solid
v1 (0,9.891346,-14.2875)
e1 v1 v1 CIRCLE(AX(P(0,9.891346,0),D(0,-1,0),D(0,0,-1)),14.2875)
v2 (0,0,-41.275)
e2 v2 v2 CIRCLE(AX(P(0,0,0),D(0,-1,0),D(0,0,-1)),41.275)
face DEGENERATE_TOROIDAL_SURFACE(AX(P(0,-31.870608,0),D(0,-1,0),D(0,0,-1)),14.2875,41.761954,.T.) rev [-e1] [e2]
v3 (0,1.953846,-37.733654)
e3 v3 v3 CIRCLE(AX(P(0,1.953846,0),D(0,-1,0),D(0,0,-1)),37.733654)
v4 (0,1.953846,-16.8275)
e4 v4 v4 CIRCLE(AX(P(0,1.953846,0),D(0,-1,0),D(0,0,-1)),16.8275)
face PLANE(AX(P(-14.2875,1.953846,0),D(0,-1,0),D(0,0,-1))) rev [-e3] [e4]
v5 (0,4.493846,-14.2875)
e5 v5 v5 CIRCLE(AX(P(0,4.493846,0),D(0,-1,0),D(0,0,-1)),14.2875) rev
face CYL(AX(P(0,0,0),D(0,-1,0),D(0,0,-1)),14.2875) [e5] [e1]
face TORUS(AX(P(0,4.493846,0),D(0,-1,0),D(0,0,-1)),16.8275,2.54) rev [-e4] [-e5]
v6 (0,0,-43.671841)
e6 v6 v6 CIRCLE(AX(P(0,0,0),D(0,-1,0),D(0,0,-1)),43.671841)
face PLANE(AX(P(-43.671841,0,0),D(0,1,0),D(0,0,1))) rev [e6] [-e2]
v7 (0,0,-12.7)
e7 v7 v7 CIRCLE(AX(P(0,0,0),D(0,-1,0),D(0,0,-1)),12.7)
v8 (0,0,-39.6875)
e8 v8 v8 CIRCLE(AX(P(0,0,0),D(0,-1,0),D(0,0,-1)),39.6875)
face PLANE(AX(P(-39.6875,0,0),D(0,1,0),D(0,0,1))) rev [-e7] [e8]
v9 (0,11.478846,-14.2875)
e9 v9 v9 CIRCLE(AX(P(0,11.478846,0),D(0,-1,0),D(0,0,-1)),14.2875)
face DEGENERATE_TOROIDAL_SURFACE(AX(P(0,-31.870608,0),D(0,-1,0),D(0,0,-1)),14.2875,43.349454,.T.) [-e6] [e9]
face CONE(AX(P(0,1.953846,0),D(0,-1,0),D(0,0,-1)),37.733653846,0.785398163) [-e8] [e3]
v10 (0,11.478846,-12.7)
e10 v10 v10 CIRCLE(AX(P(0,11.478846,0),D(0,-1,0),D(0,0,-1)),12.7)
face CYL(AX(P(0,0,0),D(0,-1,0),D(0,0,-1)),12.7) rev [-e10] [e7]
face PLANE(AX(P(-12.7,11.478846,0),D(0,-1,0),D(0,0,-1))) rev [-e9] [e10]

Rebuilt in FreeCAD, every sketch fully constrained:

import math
import FreeCAD as App
import Part
import Sketcher

V = App.Vector
Q = App.Units.Quantity


def edges_at(feature, points):
    """Names of the edges that pass closest to the given points."""
    edges = feature.Shape.Edges
    near = lambda p: min(range(len(edges)), key=lambda i: edges[i].distToShape(Part.Vertex(*p))[0])
    return sorted({f"Edge{near(p) + 1}" for p in points})

doc = App.newDocument("Part")
params = doc.addObject("Spreadsheet::Sheet", "Params")
for row, (alias, value) in enumerate([
    ("sketch1_width", "0.0625 in"),
    ("sketch1_height", "0.3125 in"),
    ("revolution_angle", "360 deg"),
    ("fillet_radius", "0.1 in"),
], start=1):
    params.set(f"A{row}", alias)
    params.set(f"B{row}", "=" + value)
    params.setAlias(f"B{row}", alias)

body = doc.addObject("PartDesign::Body", "Body")

# Sketch on XY plane
sketch1 = doc.addObject("Sketcher::SketchObject", "Sketch")
body.addObject(sketch1)
sketch1.AttachmentSupport = (doc.XY_Plane, [""])
sketch1.MapMode = "FlatFace"
sketch1.addGeometry([
    Part.LineSegment(V(-12.7, 0, 0), V(-12.7, 11.5, 0)),  # 0
    Part.LineSegment(V(-12.7, 11.5, 0), V(-14.3, 11.5, 0)),  # 1
    Part.ArcOfCircle(Part.Circle(V(-14.3, -31.9, 0), V(0, 0, 1), 43.3), math.radians(90), math.radians(133)),  # 2
    Part.LineSegment(V(-43.7, 0, 0), V(-41.3, 0, 0)),  # 3
    Part.ArcOfCircle(Part.Circle(V(-14.3, -31.9, 0), V(0, 0, 1), 41.8), math.radians(90), math.radians(130)),  # 4
    Part.LineSegment(V(-14.3, 9.9, 0), V(-14.3, 2, 0)),  # 5
    Part.LineSegment(V(-14.3, 2, 0), V(-37.7, 2, 0)),  # 6
    Part.LineSegment(V(-37.7, 2, 0), V(-39.7, 0, 0)),  # 7
    Part.LineSegment(V(-39.7, 0, 0), V(-12.7, 0, 0)),  # 8
], False)
sketch1.addConstraint([
    Sketcher.Constraint("Coincident", 0, 2, 1, 1),
    Sketcher.Constraint("Tangent", 1, 2, 2, 1),
    Sketcher.Constraint("Coincident", 2, 2, 3, 1),
    Sketcher.Constraint("Coincident", 3, 2, 4, 2),
    Sketcher.Constraint("Coincident", 4, 1, 5, 1),
    Sketcher.Constraint("Coincident", 5, 2, 6, 1),
    Sketcher.Constraint("Coincident", 6, 2, 7, 1),
    Sketcher.Constraint("Coincident", 7, 2, 8, 1),
    Sketcher.Constraint("Coincident", 8, 2, 0, 1),
    Sketcher.Constraint("Vertical", 0),
    Sketcher.Constraint("Horizontal", 1),
    Sketcher.Constraint("Horizontal", 3),
    Sketcher.Constraint("Vertical", 5),
    Sketcher.Constraint("Horizontal", 6),
    Sketcher.Constraint("Horizontal", 8),
    Sketcher.Constraint("Coincident", 4, 3, 2, 3),
    Sketcher.Constraint("PointOnObject", 2, 2, -1),
    Sketcher.Constraint("PointOnObject", 7, 2, -1),
    Sketcher.Constraint("Vertical", 1, 2, 4, 1),
    Sketcher.Constraint("Angle", 7, Q("-135 deg")),
    Sketcher.Constraint("DistanceX", 7, 2, 5, 2, Q("1 in")),
    Sketcher.Constraint("DistanceX", 0, 2, -1, 1, Q("0.5 in")),
    Sketcher.Constraint("DistanceX", 1, 2, 1, 1, Q("0.0625 in")),
    Sketcher.Constraint("DistanceY", 5, 2, 5, 1, Q("0.3125 in")),
    Sketcher.Constraint("DistanceX", 3, 2, -1, 1, Q("1.625 in")),
    Sketcher.Constraint("DistanceY", 4, 1, 1, 2, Q("0.0625 in")),
    Sketcher.Constraint("Radius", 2, 43.349454),
])
sketch1.setExpression("Constraints[22]", "Params.sketch1_width")
sketch1.setExpression("Constraints[23]", "Params.sketch1_height")
revolution = doc.addObject("PartDesign::Revolution", "Revolution")
body.addObject(revolution)
revolution.Profile = sketch1
revolution.ReferenceAxis = (sketch1, ["V_Axis"])
revolution.setExpression("Angle", "Params.revolution_angle")
doc.recompute()

fillet = doc.addObject("PartDesign::Fillet", "Fillet")
body.addObject(fillet)
fillet.Base = (revolution, edges_at(revolution, [(14.287, 1.954, 0)]))
fillet.setExpression("Radius", "Params.fillet_radius")

doc.recompute()
